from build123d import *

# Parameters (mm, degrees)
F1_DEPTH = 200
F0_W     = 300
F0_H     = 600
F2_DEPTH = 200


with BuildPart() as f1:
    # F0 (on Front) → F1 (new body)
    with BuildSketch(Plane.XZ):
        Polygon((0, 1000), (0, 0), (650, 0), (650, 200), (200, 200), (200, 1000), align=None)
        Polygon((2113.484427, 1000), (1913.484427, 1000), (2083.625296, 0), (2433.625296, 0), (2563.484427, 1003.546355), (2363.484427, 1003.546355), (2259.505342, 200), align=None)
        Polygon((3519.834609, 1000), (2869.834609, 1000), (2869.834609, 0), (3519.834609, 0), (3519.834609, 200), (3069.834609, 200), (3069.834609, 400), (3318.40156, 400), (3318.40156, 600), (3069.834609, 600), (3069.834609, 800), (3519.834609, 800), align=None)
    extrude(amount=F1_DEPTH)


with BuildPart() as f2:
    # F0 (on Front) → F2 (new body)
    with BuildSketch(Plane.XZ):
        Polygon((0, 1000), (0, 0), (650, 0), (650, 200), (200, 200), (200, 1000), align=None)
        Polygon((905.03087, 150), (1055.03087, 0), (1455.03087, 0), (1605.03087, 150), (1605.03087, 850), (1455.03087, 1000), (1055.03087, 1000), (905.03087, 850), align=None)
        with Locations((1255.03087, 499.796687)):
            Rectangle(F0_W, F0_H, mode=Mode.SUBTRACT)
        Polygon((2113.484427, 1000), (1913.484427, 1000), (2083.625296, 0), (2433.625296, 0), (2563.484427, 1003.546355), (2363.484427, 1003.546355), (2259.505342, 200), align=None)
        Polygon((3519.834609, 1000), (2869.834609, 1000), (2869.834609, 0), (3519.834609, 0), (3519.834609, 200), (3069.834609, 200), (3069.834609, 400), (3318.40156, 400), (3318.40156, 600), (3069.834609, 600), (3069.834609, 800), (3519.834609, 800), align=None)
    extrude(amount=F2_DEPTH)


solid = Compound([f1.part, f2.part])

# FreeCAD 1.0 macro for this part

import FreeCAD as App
import Part
import Sketcher
Q = App.Units.Quantity

doc = App.newDocument("Part")
params = doc.addObject("Spreadsheet::Sheet", "Params")
for row, (alias, value) in enumerate([
    ("sketch1_width", "650 mm"),
    ("sketch1_width2", "450 mm"),
    ("sketch1_width3", "350 mm"),
    ("pad1_length", "200 mm"),
    ("sketch2_width", "650 mm"),
    ("sketch2_width2", "450 mm"),
    ("sketch2_width3", "400 mm"),
    ("sketch2_width4", "300 mm"),
    ("sketch2_width5", "350 mm"),
    ("pad2_length", "200 mm"),
], start=1):
    params.set(f"A{row}", alias)
    params.set(f"B{row}", "=" + value)
    params.setAlias(f"B{row}", alias)

body = doc.addObject("PartDesign::Body", "Body")
body.AllowCompound = True

sketch1 = body.newObject("Sketcher::SketchObject", "Sketch")
sketch1.AttachmentSupport = (doc.getObject("XZ_Plane"), [""])
sketch1.MapMode = "FlatFace"
sketch1.addGeometry(Part.LineSegment(App.Vector(0, 1000, 0), App.Vector(0, 0, 0)), False)
sketch1.addGeometry(Part.LineSegment(App.Vector(0, 0, 0), App.Vector(650, 0, 0)), False)
sketch1.addGeometry(Part.LineSegment(App.Vector(650, 0, 0), App.Vector(650, 200, 0)), False)
sketch1.addGeometry(Part.LineSegment(App.Vector(650, 200, 0), App.Vector(200, 200, 0)), False)
sketch1.addGeometry(Part.LineSegment(App.Vector(200, 200, 0), App.Vector(200, 1000, 0)), False)
sketch1.addGeometry(Part.LineSegment(App.Vector(200, 1000, 0), App.Vector(0, 1000, 0)), False)
sketch1.addGeometry(Part.LineSegment(App.Vector(2113, 1000, 0), App.Vector(1913, 1000, 0)), False)
sketch1.addGeometry(Part.LineSegment(App.Vector(1913, 1000, 0), App.Vector(2084, 0, 0)), False)
sketch1.addGeometry(Part.LineSegment(App.Vector(2084, 0, 0), App.Vector(2434, 0, 0)), False)
sketch1.addGeometry(Part.LineSegment(App.Vector(2434, 0, 0), App.Vector(2563, 1004, 0)), False)
sketch1.addGeometry(Part.LineSegment(App.Vector(2563, 1004, 0), App.Vector(2363, 1004, 0)), False)
sketch1.addGeometry(Part.LineSegment(App.Vector(2363, 1004, 0), App.Vector(2260, 200, 0)), False)
sketch1.addGeometry(Part.LineSegment(App.Vector(2260, 200, 0), App.Vector(2113, 1000, 0)), False)
sketch1.addGeometry(Part.LineSegment(App.Vector(3520, 1000, 0), App.Vector(2870, 1000, 0)), False)
sketch1.addGeometry(Part.LineSegment(App.Vector(2870, 1000, 0), App.Vector(2870, 0, 0)), False)
sketch1.addGeometry(Part.LineSegment(App.Vector(2870, 0, 0), App.Vector(3520, 0, 0)), False)
sketch1.addGeometry(Part.LineSegment(App.Vector(3520, 0, 0), App.Vector(3520, 200, 0)), False)
sketch1.addGeometry(Part.LineSegment(App.Vector(3520, 200, 0), App.Vector(3070, 200, 0)), False)
sketch1.addGeometry(Part.LineSegment(App.Vector(3070, 200, 0), App.Vector(3070, 400, 0)), False)
sketch1.addGeometry(Part.LineSegment(App.Vector(3070, 400, 0), App.Vector(3318, 400, 0)), False)
sketch1.addGeometry(Part.LineSegment(App.Vector(3318, 400, 0), App.Vector(3318, 600, 0)), False)
sketch1.addGeometry(Part.LineSegment(App.Vector(3318, 600, 0), App.Vector(3070, 600, 0)), False)
sketch1.addGeometry(Part.LineSegment(App.Vector(3070, 600, 0), App.Vector(3070, 800, 0)), False)
sketch1.addGeometry(Part.LineSegment(App.Vector(3070, 800, 0), App.Vector(3520, 800, 0)), False)
sketch1.addGeometry(Part.LineSegment(App.Vector(3520, 800, 0), App.Vector(3520, 1000, 0)), False)
sketch1.addConstraint(Sketcher.Constraint("Coincident", 0, 2, 1, 1))
sketch1.addConstraint(Sketcher.Constraint("Coincident", 1, 2, 2, 1))
sketch1.addConstraint(Sketcher.Constraint("Coincident", 2, 2, 3, 1))
sketch1.addConstraint(Sketcher.Constraint("Coincident", 3, 2, 4, 1))
sketch1.addConstraint(Sketcher.Constraint("Coincident", 4, 2, 5, 1))
sketch1.addConstraint(Sketcher.Constraint("Coincident", 5, 2, 0, 1))
sketch1.addConstraint(Sketcher.Constraint("Coincident", 6, 2, 7, 1))
sketch1.addConstraint(Sketcher.Constraint("Coincident", 7, 2, 8, 1))
sketch1.addConstraint(Sketcher.Constraint("Coincident", 8, 2, 9, 1))
sketch1.addConstraint(Sketcher.Constraint("Coincident", 9, 2, 10, 1))
sketch1.addConstraint(Sketcher.Constraint("Coincident", 10, 2, 11, 1))
sketch1.addConstraint(Sketcher.Constraint("Coincident", 11, 2, 12, 1))
sketch1.addConstraint(Sketcher.Constraint("Coincident", 12, 2, 6, 1))
sketch1.addConstraint(Sketcher.Constraint("Coincident", 13, 2, 14, 1))
sketch1.addConstraint(Sketcher.Constraint("Coincident", 14, 2, 15, 1))
sketch1.addConstraint(Sketcher.Constraint("Coincident", 15, 2, 16, 1))
sketch1.addConstraint(Sketcher.Constraint("Coincident", 16, 2, 17, 1))
sketch1.addConstraint(Sketcher.Constraint("Coincident", 17, 2, 18, 1))
sketch1.addConstraint(Sketcher.Constraint("Coincident", 18, 2, 19, 1))
sketch1.addConstraint(Sketcher.Constraint("Coincident", 19, 2, 20, 1))
sketch1.addConstraint(Sketcher.Constraint("Coincident", 20, 2, 21, 1))
sketch1.addConstraint(Sketcher.Constraint("Coincident", 21, 2, 22, 1))
sketch1.addConstraint(Sketcher.Constraint("Coincident", 22, 2, 23, 1))
sketch1.addConstraint(Sketcher.Constraint("Coincident", 23, 2, 24, 1))
sketch1.addConstraint(Sketcher.Constraint("Coincident", 24, 2, 13, 1))
sketch1.addConstraint(Sketcher.Constraint("Vertical", 0))
sketch1.addConstraint(Sketcher.Constraint("Horizontal", 1))
sketch1.addConstraint(Sketcher.Constraint("Vertical", 2))
sketch1.addConstraint(Sketcher.Constraint("Horizontal", 3))
sketch1.addConstraint(Sketcher.Constraint("Vertical", 4))
sketch1.addConstraint(Sketcher.Constraint("Horizontal", 5))
sketch1.addConstraint(Sketcher.Constraint("Horizontal", 6))
sketch1.addConstraint(Sketcher.Constraint("Horizontal", 8))
sketch1.addConstraint(Sketcher.Constraint("Horizontal", 10))
sketch1.addConstraint(Sketcher.Constraint("Horizontal", 13))
sketch1.addConstraint(Sketcher.Constraint("Vertical", 14))
sketch1.addConstraint(Sketcher.Constraint("Horizontal", 15))
sketch1.addConstraint(Sketcher.Constraint("Vertical", 16))
sketch1.addConstraint(Sketcher.Constraint("Horizontal", 17))
sketch1.addConstraint(Sketcher.Constraint("Vertical", 18))
sketch1.addConstraint(Sketcher.Constraint("Horizontal", 19))
sketch1.addConstraint(Sketcher.Constraint("Vertical", 20))
sketch1.addConstraint(Sketcher.Constraint("Horizontal", 21))
sketch1.addConstraint(Sketcher.Constraint("Vertical", 22))
sketch1.addConstraint(Sketcher.Constraint("Horizontal", 23))
sketch1.addConstraint(Sketcher.Constraint("Vertical", 24))
sketch1.addConstraint(Sketcher.Constraint("Coincident", 0, 2, -1, 1))
sketch1.addConstraint(Sketcher.Constraint("PointOnObject", 7, 2, -1))
sketch1.addConstraint(Sketcher.Constraint("PointOnObject", 14, 2, -1))
sketch1.addConstraint(Sketcher.Constraint("Parallel", 9, 11))
sketch1.addConstraint(Sketcher.Constraint("Horizontal", 5, 2, 6, 2))
sketch1.addConstraint(Sketcher.Constraint("Horizontal", 3, 2, 11, 2))
sketch1.addConstraint(Sketcher.Constraint("Horizontal", 12, 2, 13, 2))
sketch1.addConstraint(Sketcher.Constraint("Horizontal", 11, 2, 16, 2))
sketch1.addConstraint(Sketcher.Constraint("Vertical", 18, 2, 21, 2))
sketch1.addConstraint(Sketcher.Constraint("Vertical", 16, 2, 23, 2))
sketch1.addConstraint(Sketcher.Constraint("Equal", 5, 6))
sketch1.addConstraint(Sketcher.Constraint("Equal", 6, 10))
sketch1.addConstraint(Sketcher.Constraint("Equal", 1, 13))
sketch1.addConstraint(Sketcher.Constraint("Equal", 3, 17))
sketch1.addConstraint(Sketcher.Constraint("Equal", 10, 2))
sketch1.addConstraint(Sketcher.Constraint("Equal", 16, 18))
sketch1.addConstraint(Sketcher.Constraint("Equal", 18, 20))
sketch1.addConstraint(Sketcher.Constraint("Equal", 20, 22))
sketch1.addConstraint(Sketcher.Constraint("Equal", 22, 24))
sketch1.addConstraint(Sketcher.Constraint("DistanceX", 1, 1, 1, 2, Q("650 mm")))
sketch1.addConstraint(Sketcher.Constraint("DistanceX", 3, 2, 3, 1, Q("450 mm")))
sketch1.addConstraint(Sketcher.Constraint("DistanceX", 8, 1, 8, 2, Q("350 mm")))
sketch1.addConstraint(Sketcher.Constraint("DistanceX", 6, 2, 9, 2, Q("650 mm")))
sketch1.addConstraint(Sketcher.Constraint("Distance", 7, Q("1014.370699 mm")))
sketch1.addConstraint(Sketcher.Constraint("DistanceX", 19, 1, 19, 2, Q("248.566951 mm")))
sketch1.addConstraint(Sketcher.Constraint("DistanceX", -1, 1, 11, 2, Q("2259.505342 mm")))
sketch1.addConstraint(Sketcher.Constraint("DistanceX", -1, 1, 13, 2, Q("2869.834609 mm")))
sketch1.addConstraint(Sketcher.Constraint("DistanceX", 6, 2, 13, 2, Q("956.350182 mm")))
sketch1.setExpression("Constraints[65]", "Params.sketch1_width")
sketch1.setExpression("Constraints[66]", "Params.sketch1_width2")
sketch1.setExpression("Constraints[67]", "Params.sketch1_width3")
pad1 = body.newObject("PartDesign::Pad", "Pad")
pad1.Profile = sketch1
pad1.setExpression("Length", "Params.pad1_length")
body2 = doc.addObject("PartDesign::Body", "Body001")
body2.AllowCompound = True

sketch2 = body2.newObject("Sketcher::SketchObject", "Sketch001")
sketch2.AttachmentSupport = (doc.getObject("XZ_Plane001"), [""])
sketch2.MapMode = "FlatFace"
sketch2.addGeometry(Part.LineSegment(App.Vector(0, 1000, 0), App.Vector(0, 0, 0)), False)
sketch2.addGeometry(Part.LineSegment(App.Vector(0, 0, 0), App.Vector(650, 0, 0)), False)
sketch2.addGeometry(Part.LineSegment(App.Vector(650, 0, 0), App.Vector(650, 200, 0)), False)
sketch2.addGeometry(Part.LineSegment(App.Vector(650, 200, 0), App.Vector(200, 200, 0)), False)
sketch2.addGeometry(Part.LineSegment(App.Vector(200, 200, 0), App.Vector(200, 1000, 0)), False)
sketch2.addGeometry(Part.LineSegment(App.Vector(200, 1000, 0), App.Vector(0, 1000, 0)), False)
sketch2.addGeometry(Part.LineSegment(App.Vector(905, 150, 0), App.Vector(1055, 0, 0)), False)
sketch2.addGeometry(Part.LineSegment(App.Vector(1055, 0, 0), App.Vector(1455, 0, 0)), False)
sketch2.addGeometry(Part.LineSegment(App.Vector(1455, 0, 0), App.Vector(1605, 150, 0)), False)
sketch2.addGeometry(Part.LineSegment(App.Vector(1605, 150, 0), App.Vector(1605, 850, 0)), False)
sketch2.addGeometry(Part.LineSegment(App.Vector(1605, 850, 0), App.Vector(1455, 1000, 0)), False)
sketch2.addGeometry(Part.LineSegment(App.Vector(1455, 1000, 0), App.Vector(1055, 1000, 0)), False)
sketch2.addGeometry(Part.LineSegment(App.Vector(1055, 1000, 0), App.Vector(905, 850, 0)), False)
sketch2.addGeometry(Part.LineSegment(App.Vector(905, 850, 0), App.Vector(905, 150, 0)), False)
sketch2.addGeometry(Part.LineSegment(App.Vector(1405, 200, 0), App.Vector(1105, 200, 0)), False)
sketch2.addGeometry(Part.LineSegment(App.Vector(1105, 200, 0), App.Vector(1105, 800, 0)), False)
sketch2.addGeometry(Part.LineSegment(App.Vector(1105, 800, 0), App.Vector(1405, 800, 0)), False)
sketch2.addGeometry(Part.LineSegment(App.Vector(1405, 800, 0), App.Vector(1405, 200, 0)), False)
sketch2.addGeometry(Part.LineSegment(App.Vector(2113, 1000, 0), App.Vector(1913, 1000, 0)), False)
sketch2.addGeometry(Part.LineSegment(App.Vector(1913, 1000, 0), App.Vector(2084, 0, 0)), False)
sketch2.addGeometry(Part.LineSegment(App.Vector(2084, 0, 0), App.Vector(2434, 0, 0)), False)
sketch2.addGeometry(Part.LineSegment(App.Vector(2434, 0, 0), App.Vector(2563, 1004, 0)), False)
sketch2.addGeometry(Part.LineSegment(App.Vector(2563, 1004, 0), App.Vector(2363, 1004, 0)), False)
sketch2.addGeometry(Part.LineSegment(App.Vector(2363, 1004, 0), App.Vector(2260, 200, 0)), False)
sketch2.addGeometry(Part.LineSegment(App.Vector(2260, 200, 0), App.Vector(2113, 1000, 0)), False)
sketch2.addGeometry(Part.LineSegment(App.Vector(3520, 1000, 0), App.Vector(2870, 1000, 0)), False)
sketch2.addGeometry(Part.LineSegment(App.Vector(2870, 1000, 0), App.Vector(2870, 0, 0)), False)
sketch2.addGeometry(Part.LineSegment(App.Vector(2870, 0, 0), App.Vector(3520, 0, 0)), False)
sketch2.addGeometry(Part.LineSegment(App.Vector(3520, 0, 0), App.Vector(3520, 200, 0)), False)
sketch2.addGeometry(Part.LineSegment(App.Vector(3520, 200, 0), App.Vector(3070, 200, 0)), False)
sketch2.addGeometry(Part.LineSegment(App.Vector(3070, 200, 0), App.Vector(3070, 400, 0)), False)
sketch2.addGeometry(Part.LineSegment(App.Vector(3070, 400, 0), App.Vector(3318, 400, 0)), False)
sketch2.addGeometry(Part.LineSegment(App.Vector(3318, 400, 0), App.Vector(3318, 600, 0)), False)
sketch2.addGeometry(Part.LineSegment(App.Vector(3318, 600, 0), App.Vector(3070, 600, 0)), False)
sketch2.addGeometry(Part.LineSegment(App.Vector(3070, 600, 0), App.Vector(3070, 800, 0)), False)
sketch2.addGeometry(Part.LineSegment(App.Vector(3070, 800, 0), App.Vector(3520, 800, 0)), False)
sketch2.addGeometry(Part.LineSegment(App.Vector(3520, 800, 0), App.Vector(3520, 1000, 0)), False)
sketch2.addConstraint(Sketcher.Constraint("Coincident", 0, 2, 1, 1))
sketch2.addConstraint(Sketcher.Constraint("Coincident", 1, 2, 2, 1))
sketch2.addConstraint(Sketcher.Constraint("Coincident", 2, 2, 3, 1))
sketch2.addConstraint(Sketcher.Constraint("Coincident", 3, 2, 4, 1))
sketch2.addConstraint(Sketcher.Constraint("Coincident", 4, 2, 5, 1))
sketch2.addConstraint(Sketcher.Constraint("Coincident", 5, 2, 0, 1))
sketch2.addConstraint(Sketcher.Constraint("Coincident", 6, 2, 7, 1))
sketch2.addConstraint(Sketcher.Constraint("Coincident", 7, 2, 8, 1))
sketch2.addConstraint(Sketcher.Constraint("Coincident", 8, 2, 9, 1))
sketch2.addConstraint(Sketcher.Constraint("Coincident", 9, 2, 10, 1))
sketch2.addConstraint(Sketcher.Constraint("Coincident", 10, 2, 11, 1))
sketch2.addConstraint(Sketcher.Constraint("Coincident", 11, 2, 12, 1))
sketch2.addConstraint(Sketcher.Constraint("Coincident", 12, 2, 13, 1))
sketch2.addConstraint(Sketcher.Constraint("Coincident", 13, 2, 6, 1))
sketch2.addConstraint(Sketcher.Constraint("Coincident", 14, 2, 15, 1))
sketch2.addConstraint(Sketcher.Constraint("Coincident", 15, 2, 16, 1))
sketch2.addConstraint(Sketcher.Constraint("Coincident", 16, 2, 17, 1))
sketch2.addConstraint(Sketcher.Constraint("Coincident", 17, 2, 14, 1))
sketch2.addConstraint(Sketcher.Constraint("Coincident", 18, 2, 19, 1))
sketch2.addConstraint(Sketcher.Constraint("Coincident", 19, 2, 20, 1))
sketch2.addConstraint(Sketcher.Constraint("Coincident", 20, 2, 21, 1))
sketch2.addConstraint(Sketcher.Constraint("Coincident", 21, 2, 22, 1))
sketch2.addConstraint(Sketcher.Constraint("Coincident", 22, 2, 23, 1))
sketch2.addConstraint(Sketcher.Constraint("Coincident", 23, 2, 24, 1))
sketch2.addConstraint(Sketcher.Constraint("Coincident", 24, 2, 18, 1))
sketch2.addConstraint(Sketcher.Constraint("Coincident", 25, 2, 26, 1))
sketch2.addConstraint(Sketcher.Constraint("Coincident", 26, 2, 27, 1))
sketch2.addConstraint(Sketcher.Constraint("Coincident", 27, 2, 28, 1))
sketch2.addConstraint(Sketcher.Constraint("Coincident", 28, 2, 29, 1))
sketch2.addConstraint(Sketcher.Constraint("Coincident", 29, 2, 30, 1))
sketch2.addConstraint(Sketcher.Constraint("Coincident", 30, 2, 31, 1))
sketch2.addConstraint(Sketcher.Constraint("Coincident", 31, 2, 32, 1))
sketch2.addConstraint(Sketcher.Constraint("Coincident", 32, 2, 33, 1))
sketch2.addConstraint(Sketcher.Constraint("Coincident", 33, 2, 34, 1))
sketch2.addConstraint(Sketcher.Constraint("Coincident", 34, 2, 35, 1))
sketch2.addConstraint(Sketcher.Constraint("Coincident", 35, 2, 36, 1))
sketch2.addConstraint(Sketcher.Constraint("Coincident", 36, 2, 25, 1))
sketch2.addConstraint(Sketcher.Constraint("Vertical", 0))
sketch2.addConstraint(Sketcher.Constraint("Horizontal", 1))
sketch2.addConstraint(Sketcher.Constraint("Vertical", 2))
sketch2.addConstraint(Sketcher.Constraint("Horizontal", 3))
sketch2.addConstraint(Sketcher.Constraint("Vertical", 4))
sketch2.addConstraint(Sketcher.Constraint("Horizontal", 5))
sketch2.addConstraint(Sketcher.Constraint("Horizontal", 7))
sketch2.addConstraint(Sketcher.Constraint("Vertical", 9))
sketch2.addConstraint(Sketcher.Constraint("Horizontal", 11))
sketch2.addConstraint(Sketcher.Constraint("Vertical", 13))
sketch2.addConstraint(Sketcher.Constraint("Horizontal", 14))
sketch2.addConstraint(Sketcher.Constraint("Vertical", 15))
sketch2.addConstraint(Sketcher.Constraint("Horizontal", 16))
sketch2.addConstraint(Sketcher.Constraint("Vertical", 17))
sketch2.addConstraint(Sketcher.Constraint("Horizontal", 18))
sketch2.addConstraint(Sketcher.Constraint("Horizontal", 20))
sketch2.addConstraint(Sketcher.Constraint("Horizontal", 22))
sketch2.addConstraint(Sketcher.Constraint("Horizontal", 25))
sketch2.addConstraint(Sketcher.Constraint("Vertical", 26))
sketch2.addConstraint(Sketcher.Constraint("Horizontal", 27))
sketch2.addConstraint(Sketcher.Constraint("Vertical", 28))
sketch2.addConstraint(Sketcher.Constraint("Horizontal", 29))
sketch2.addConstraint(Sketcher.Constraint("Vertical", 30))
sketch2.addConstraint(Sketcher.Constraint("Horizontal", 31))
sketch2.addConstraint(Sketcher.Constraint("Vertical", 32))
sketch2.addConstraint(Sketcher.Constraint("Horizontal", 33))
sketch2.addConstraint(Sketcher.Constraint("Vertical", 34))
sketch2.addConstraint(Sketcher.Constraint("Horizontal", 35))
sketch2.addConstraint(Sketcher.Constraint("Vertical", 36))
sketch2.addConstraint(Sketcher.Constraint("Coincident", 0, 2, -1, 1))
sketch2.addConstraint(Sketcher.Constraint("PointOnObject", 6, 2, -1))
sketch2.addConstraint(Sketcher.Constraint("PointOnObject", 19, 2, -1))
sketch2.addConstraint(Sketcher.Constraint("PointOnObject", 26, 2, -1))
sketch2.addConstraint(Sketcher.Constraint("Perpendicular", 6, 8))
sketch2.addConstraint(Sketcher.Constraint("Perpendicular", 8, 10))
sketch2.addConstraint(Sketcher.Constraint("Perpendicular", 10, 12))
sketch2.addConstraint(Sketcher.Constraint("Parallel", 21, 23))
sketch2.addConstraint(Sketcher.Constraint("Horizontal", 5, 2, 10, 2))
sketch2.addConstraint(Sketcher.Constraint("Horizontal", 9, 2, 12, 2))
sketch2.addConstraint(Sketcher.Constraint("Horizontal", 8, 2, 13, 2))
sketch2.addConstraint(Sketcher.Constraint("Horizontal", 11, 2, 18, 2))
sketch2.addConstraint(Sketcher.Constraint("Horizontal", 3, 2, 23, 2))
sketch2.addConstraint(Sketcher.Constraint("Horizontal", 24, 2, 25, 2))
sketch2.addConstraint(Sketcher.Constraint("Horizontal", 23, 2, 28, 2))
sketch2.addConstraint(Sketcher.Constraint("Vertical", 7, 2, 10, 2))
sketch2.addConstraint(Sketcher.Constraint("Vertical", 6, 2, 11, 2))
sketch2.addConstraint(Sketcher.Constraint("Vertical", 30, 2, 33, 2))
sketch2.addConstraint(Sketcher.Constraint("Vertical", 28, 2, 35, 2))
sketch2.addConstraint(Sketcher.Constraint("Equal", 5, 18))
sketch2.addConstraint(Sketcher.Constraint("Equal", 18, 22))
sketch2.addConstraint(Sketcher.Constraint("Equal", 1, 25))
sketch2.addConstraint(Sketcher.Constraint("Equal", 3, 29))
sketch2.addConstraint(Sketcher.Constraint("Equal", 22, 2))
sketch2.addConstraint(Sketcher.Constraint("Equal", 28, 30))
sketch2.addConstraint(Sketcher.Constraint("Equal", 30, 32))
sketch2.addConstraint(Sketcher.Constraint("Equal", 32, 34))
sketch2.addConstraint(Sketcher.Constraint("Equal", 34, 36))
sketch2.addConstraint(Sketcher.Constraint("DistanceX", 1, 1, 1, 2, Q("650 mm")))
sketch2.addConstraint(Sketcher.Constraint("DistanceX", 3, 2, 3, 1, Q("450 mm")))
sketch2.addConstraint(Sketcher.Constraint("DistanceX", 7, 1, 7, 2, Q("400 mm")))
sketch2.addConstraint(Sketcher.Constraint("DistanceX", 14, 2, 14, 1, Q("300 mm")))
sketch2.addConstraint(Sketcher.Constraint("DistanceX", 20, 1, 20, 2, Q("350 mm")))
sketch2.addConstraint(Sketcher.Constraint("DistanceY", 9, 1, 9, 2, Q("700 mm")))
sketch2.addConstraint(Sketcher.Constraint("DistanceY", 15, 1, 15, 2, Q("600 mm")))
sketch2.addConstraint(Sketcher.Constraint("DistanceX", 6, 2, 14, 2, Q("50 mm")))
sketch2.addConstraint(Sketcher.Constraint("DistanceX", 18, 2, 21, 2, Q("650 mm")))
sketch2.addConstraint(Sketcher.Constraint("Distance", 19, Q("1014.370699 mm")))
sketch2.addConstraint(Sketcher.Constraint("DistanceX", 31, 1, 31, 2, Q("248.566951 mm")))
sketch2.addConstraint(Sketcher.Constraint("DistanceX", -1, 1, 6, 2, Q("1055.03087 mm")))
sketch2.addConstraint(Sketcher.Constraint("DistanceX", -1, 1, 23, 2, Q("2259.505342 mm")))
sketch2.addConstraint(Sketcher.Constraint("DistanceX", -1, 1, 25, 2, Q("2869.834609 mm")))
sketch2.addConstraint(Sketcher.Constraint("DistanceX", 18, 2, 25, 2, Q("956.350182 mm")))
sketch2.addConstraint(Sketcher.Constraint("DistanceY", -1, 1, 14, 2, Q("199.796687 mm")))
sketch2.setExpression("Constraints[94]", "Params.sketch2_width")
sketch2.setExpression("Constraints[95]", "Params.sketch2_width2")
sketch2.setExpression("Constraints[96]", "Params.sketch2_width3")
sketch2.setExpression("Constraints[97]", "Params.sketch2_width4")
sketch2.setExpression("Constraints[98]", "Params.sketch2_width5")
pad2 = body2.newObject("PartDesign::Pad", "Pad001")
pad2.Profile = sketch2
pad2.setExpression("Length", "Params.pad2_length")

doc.recompute()
